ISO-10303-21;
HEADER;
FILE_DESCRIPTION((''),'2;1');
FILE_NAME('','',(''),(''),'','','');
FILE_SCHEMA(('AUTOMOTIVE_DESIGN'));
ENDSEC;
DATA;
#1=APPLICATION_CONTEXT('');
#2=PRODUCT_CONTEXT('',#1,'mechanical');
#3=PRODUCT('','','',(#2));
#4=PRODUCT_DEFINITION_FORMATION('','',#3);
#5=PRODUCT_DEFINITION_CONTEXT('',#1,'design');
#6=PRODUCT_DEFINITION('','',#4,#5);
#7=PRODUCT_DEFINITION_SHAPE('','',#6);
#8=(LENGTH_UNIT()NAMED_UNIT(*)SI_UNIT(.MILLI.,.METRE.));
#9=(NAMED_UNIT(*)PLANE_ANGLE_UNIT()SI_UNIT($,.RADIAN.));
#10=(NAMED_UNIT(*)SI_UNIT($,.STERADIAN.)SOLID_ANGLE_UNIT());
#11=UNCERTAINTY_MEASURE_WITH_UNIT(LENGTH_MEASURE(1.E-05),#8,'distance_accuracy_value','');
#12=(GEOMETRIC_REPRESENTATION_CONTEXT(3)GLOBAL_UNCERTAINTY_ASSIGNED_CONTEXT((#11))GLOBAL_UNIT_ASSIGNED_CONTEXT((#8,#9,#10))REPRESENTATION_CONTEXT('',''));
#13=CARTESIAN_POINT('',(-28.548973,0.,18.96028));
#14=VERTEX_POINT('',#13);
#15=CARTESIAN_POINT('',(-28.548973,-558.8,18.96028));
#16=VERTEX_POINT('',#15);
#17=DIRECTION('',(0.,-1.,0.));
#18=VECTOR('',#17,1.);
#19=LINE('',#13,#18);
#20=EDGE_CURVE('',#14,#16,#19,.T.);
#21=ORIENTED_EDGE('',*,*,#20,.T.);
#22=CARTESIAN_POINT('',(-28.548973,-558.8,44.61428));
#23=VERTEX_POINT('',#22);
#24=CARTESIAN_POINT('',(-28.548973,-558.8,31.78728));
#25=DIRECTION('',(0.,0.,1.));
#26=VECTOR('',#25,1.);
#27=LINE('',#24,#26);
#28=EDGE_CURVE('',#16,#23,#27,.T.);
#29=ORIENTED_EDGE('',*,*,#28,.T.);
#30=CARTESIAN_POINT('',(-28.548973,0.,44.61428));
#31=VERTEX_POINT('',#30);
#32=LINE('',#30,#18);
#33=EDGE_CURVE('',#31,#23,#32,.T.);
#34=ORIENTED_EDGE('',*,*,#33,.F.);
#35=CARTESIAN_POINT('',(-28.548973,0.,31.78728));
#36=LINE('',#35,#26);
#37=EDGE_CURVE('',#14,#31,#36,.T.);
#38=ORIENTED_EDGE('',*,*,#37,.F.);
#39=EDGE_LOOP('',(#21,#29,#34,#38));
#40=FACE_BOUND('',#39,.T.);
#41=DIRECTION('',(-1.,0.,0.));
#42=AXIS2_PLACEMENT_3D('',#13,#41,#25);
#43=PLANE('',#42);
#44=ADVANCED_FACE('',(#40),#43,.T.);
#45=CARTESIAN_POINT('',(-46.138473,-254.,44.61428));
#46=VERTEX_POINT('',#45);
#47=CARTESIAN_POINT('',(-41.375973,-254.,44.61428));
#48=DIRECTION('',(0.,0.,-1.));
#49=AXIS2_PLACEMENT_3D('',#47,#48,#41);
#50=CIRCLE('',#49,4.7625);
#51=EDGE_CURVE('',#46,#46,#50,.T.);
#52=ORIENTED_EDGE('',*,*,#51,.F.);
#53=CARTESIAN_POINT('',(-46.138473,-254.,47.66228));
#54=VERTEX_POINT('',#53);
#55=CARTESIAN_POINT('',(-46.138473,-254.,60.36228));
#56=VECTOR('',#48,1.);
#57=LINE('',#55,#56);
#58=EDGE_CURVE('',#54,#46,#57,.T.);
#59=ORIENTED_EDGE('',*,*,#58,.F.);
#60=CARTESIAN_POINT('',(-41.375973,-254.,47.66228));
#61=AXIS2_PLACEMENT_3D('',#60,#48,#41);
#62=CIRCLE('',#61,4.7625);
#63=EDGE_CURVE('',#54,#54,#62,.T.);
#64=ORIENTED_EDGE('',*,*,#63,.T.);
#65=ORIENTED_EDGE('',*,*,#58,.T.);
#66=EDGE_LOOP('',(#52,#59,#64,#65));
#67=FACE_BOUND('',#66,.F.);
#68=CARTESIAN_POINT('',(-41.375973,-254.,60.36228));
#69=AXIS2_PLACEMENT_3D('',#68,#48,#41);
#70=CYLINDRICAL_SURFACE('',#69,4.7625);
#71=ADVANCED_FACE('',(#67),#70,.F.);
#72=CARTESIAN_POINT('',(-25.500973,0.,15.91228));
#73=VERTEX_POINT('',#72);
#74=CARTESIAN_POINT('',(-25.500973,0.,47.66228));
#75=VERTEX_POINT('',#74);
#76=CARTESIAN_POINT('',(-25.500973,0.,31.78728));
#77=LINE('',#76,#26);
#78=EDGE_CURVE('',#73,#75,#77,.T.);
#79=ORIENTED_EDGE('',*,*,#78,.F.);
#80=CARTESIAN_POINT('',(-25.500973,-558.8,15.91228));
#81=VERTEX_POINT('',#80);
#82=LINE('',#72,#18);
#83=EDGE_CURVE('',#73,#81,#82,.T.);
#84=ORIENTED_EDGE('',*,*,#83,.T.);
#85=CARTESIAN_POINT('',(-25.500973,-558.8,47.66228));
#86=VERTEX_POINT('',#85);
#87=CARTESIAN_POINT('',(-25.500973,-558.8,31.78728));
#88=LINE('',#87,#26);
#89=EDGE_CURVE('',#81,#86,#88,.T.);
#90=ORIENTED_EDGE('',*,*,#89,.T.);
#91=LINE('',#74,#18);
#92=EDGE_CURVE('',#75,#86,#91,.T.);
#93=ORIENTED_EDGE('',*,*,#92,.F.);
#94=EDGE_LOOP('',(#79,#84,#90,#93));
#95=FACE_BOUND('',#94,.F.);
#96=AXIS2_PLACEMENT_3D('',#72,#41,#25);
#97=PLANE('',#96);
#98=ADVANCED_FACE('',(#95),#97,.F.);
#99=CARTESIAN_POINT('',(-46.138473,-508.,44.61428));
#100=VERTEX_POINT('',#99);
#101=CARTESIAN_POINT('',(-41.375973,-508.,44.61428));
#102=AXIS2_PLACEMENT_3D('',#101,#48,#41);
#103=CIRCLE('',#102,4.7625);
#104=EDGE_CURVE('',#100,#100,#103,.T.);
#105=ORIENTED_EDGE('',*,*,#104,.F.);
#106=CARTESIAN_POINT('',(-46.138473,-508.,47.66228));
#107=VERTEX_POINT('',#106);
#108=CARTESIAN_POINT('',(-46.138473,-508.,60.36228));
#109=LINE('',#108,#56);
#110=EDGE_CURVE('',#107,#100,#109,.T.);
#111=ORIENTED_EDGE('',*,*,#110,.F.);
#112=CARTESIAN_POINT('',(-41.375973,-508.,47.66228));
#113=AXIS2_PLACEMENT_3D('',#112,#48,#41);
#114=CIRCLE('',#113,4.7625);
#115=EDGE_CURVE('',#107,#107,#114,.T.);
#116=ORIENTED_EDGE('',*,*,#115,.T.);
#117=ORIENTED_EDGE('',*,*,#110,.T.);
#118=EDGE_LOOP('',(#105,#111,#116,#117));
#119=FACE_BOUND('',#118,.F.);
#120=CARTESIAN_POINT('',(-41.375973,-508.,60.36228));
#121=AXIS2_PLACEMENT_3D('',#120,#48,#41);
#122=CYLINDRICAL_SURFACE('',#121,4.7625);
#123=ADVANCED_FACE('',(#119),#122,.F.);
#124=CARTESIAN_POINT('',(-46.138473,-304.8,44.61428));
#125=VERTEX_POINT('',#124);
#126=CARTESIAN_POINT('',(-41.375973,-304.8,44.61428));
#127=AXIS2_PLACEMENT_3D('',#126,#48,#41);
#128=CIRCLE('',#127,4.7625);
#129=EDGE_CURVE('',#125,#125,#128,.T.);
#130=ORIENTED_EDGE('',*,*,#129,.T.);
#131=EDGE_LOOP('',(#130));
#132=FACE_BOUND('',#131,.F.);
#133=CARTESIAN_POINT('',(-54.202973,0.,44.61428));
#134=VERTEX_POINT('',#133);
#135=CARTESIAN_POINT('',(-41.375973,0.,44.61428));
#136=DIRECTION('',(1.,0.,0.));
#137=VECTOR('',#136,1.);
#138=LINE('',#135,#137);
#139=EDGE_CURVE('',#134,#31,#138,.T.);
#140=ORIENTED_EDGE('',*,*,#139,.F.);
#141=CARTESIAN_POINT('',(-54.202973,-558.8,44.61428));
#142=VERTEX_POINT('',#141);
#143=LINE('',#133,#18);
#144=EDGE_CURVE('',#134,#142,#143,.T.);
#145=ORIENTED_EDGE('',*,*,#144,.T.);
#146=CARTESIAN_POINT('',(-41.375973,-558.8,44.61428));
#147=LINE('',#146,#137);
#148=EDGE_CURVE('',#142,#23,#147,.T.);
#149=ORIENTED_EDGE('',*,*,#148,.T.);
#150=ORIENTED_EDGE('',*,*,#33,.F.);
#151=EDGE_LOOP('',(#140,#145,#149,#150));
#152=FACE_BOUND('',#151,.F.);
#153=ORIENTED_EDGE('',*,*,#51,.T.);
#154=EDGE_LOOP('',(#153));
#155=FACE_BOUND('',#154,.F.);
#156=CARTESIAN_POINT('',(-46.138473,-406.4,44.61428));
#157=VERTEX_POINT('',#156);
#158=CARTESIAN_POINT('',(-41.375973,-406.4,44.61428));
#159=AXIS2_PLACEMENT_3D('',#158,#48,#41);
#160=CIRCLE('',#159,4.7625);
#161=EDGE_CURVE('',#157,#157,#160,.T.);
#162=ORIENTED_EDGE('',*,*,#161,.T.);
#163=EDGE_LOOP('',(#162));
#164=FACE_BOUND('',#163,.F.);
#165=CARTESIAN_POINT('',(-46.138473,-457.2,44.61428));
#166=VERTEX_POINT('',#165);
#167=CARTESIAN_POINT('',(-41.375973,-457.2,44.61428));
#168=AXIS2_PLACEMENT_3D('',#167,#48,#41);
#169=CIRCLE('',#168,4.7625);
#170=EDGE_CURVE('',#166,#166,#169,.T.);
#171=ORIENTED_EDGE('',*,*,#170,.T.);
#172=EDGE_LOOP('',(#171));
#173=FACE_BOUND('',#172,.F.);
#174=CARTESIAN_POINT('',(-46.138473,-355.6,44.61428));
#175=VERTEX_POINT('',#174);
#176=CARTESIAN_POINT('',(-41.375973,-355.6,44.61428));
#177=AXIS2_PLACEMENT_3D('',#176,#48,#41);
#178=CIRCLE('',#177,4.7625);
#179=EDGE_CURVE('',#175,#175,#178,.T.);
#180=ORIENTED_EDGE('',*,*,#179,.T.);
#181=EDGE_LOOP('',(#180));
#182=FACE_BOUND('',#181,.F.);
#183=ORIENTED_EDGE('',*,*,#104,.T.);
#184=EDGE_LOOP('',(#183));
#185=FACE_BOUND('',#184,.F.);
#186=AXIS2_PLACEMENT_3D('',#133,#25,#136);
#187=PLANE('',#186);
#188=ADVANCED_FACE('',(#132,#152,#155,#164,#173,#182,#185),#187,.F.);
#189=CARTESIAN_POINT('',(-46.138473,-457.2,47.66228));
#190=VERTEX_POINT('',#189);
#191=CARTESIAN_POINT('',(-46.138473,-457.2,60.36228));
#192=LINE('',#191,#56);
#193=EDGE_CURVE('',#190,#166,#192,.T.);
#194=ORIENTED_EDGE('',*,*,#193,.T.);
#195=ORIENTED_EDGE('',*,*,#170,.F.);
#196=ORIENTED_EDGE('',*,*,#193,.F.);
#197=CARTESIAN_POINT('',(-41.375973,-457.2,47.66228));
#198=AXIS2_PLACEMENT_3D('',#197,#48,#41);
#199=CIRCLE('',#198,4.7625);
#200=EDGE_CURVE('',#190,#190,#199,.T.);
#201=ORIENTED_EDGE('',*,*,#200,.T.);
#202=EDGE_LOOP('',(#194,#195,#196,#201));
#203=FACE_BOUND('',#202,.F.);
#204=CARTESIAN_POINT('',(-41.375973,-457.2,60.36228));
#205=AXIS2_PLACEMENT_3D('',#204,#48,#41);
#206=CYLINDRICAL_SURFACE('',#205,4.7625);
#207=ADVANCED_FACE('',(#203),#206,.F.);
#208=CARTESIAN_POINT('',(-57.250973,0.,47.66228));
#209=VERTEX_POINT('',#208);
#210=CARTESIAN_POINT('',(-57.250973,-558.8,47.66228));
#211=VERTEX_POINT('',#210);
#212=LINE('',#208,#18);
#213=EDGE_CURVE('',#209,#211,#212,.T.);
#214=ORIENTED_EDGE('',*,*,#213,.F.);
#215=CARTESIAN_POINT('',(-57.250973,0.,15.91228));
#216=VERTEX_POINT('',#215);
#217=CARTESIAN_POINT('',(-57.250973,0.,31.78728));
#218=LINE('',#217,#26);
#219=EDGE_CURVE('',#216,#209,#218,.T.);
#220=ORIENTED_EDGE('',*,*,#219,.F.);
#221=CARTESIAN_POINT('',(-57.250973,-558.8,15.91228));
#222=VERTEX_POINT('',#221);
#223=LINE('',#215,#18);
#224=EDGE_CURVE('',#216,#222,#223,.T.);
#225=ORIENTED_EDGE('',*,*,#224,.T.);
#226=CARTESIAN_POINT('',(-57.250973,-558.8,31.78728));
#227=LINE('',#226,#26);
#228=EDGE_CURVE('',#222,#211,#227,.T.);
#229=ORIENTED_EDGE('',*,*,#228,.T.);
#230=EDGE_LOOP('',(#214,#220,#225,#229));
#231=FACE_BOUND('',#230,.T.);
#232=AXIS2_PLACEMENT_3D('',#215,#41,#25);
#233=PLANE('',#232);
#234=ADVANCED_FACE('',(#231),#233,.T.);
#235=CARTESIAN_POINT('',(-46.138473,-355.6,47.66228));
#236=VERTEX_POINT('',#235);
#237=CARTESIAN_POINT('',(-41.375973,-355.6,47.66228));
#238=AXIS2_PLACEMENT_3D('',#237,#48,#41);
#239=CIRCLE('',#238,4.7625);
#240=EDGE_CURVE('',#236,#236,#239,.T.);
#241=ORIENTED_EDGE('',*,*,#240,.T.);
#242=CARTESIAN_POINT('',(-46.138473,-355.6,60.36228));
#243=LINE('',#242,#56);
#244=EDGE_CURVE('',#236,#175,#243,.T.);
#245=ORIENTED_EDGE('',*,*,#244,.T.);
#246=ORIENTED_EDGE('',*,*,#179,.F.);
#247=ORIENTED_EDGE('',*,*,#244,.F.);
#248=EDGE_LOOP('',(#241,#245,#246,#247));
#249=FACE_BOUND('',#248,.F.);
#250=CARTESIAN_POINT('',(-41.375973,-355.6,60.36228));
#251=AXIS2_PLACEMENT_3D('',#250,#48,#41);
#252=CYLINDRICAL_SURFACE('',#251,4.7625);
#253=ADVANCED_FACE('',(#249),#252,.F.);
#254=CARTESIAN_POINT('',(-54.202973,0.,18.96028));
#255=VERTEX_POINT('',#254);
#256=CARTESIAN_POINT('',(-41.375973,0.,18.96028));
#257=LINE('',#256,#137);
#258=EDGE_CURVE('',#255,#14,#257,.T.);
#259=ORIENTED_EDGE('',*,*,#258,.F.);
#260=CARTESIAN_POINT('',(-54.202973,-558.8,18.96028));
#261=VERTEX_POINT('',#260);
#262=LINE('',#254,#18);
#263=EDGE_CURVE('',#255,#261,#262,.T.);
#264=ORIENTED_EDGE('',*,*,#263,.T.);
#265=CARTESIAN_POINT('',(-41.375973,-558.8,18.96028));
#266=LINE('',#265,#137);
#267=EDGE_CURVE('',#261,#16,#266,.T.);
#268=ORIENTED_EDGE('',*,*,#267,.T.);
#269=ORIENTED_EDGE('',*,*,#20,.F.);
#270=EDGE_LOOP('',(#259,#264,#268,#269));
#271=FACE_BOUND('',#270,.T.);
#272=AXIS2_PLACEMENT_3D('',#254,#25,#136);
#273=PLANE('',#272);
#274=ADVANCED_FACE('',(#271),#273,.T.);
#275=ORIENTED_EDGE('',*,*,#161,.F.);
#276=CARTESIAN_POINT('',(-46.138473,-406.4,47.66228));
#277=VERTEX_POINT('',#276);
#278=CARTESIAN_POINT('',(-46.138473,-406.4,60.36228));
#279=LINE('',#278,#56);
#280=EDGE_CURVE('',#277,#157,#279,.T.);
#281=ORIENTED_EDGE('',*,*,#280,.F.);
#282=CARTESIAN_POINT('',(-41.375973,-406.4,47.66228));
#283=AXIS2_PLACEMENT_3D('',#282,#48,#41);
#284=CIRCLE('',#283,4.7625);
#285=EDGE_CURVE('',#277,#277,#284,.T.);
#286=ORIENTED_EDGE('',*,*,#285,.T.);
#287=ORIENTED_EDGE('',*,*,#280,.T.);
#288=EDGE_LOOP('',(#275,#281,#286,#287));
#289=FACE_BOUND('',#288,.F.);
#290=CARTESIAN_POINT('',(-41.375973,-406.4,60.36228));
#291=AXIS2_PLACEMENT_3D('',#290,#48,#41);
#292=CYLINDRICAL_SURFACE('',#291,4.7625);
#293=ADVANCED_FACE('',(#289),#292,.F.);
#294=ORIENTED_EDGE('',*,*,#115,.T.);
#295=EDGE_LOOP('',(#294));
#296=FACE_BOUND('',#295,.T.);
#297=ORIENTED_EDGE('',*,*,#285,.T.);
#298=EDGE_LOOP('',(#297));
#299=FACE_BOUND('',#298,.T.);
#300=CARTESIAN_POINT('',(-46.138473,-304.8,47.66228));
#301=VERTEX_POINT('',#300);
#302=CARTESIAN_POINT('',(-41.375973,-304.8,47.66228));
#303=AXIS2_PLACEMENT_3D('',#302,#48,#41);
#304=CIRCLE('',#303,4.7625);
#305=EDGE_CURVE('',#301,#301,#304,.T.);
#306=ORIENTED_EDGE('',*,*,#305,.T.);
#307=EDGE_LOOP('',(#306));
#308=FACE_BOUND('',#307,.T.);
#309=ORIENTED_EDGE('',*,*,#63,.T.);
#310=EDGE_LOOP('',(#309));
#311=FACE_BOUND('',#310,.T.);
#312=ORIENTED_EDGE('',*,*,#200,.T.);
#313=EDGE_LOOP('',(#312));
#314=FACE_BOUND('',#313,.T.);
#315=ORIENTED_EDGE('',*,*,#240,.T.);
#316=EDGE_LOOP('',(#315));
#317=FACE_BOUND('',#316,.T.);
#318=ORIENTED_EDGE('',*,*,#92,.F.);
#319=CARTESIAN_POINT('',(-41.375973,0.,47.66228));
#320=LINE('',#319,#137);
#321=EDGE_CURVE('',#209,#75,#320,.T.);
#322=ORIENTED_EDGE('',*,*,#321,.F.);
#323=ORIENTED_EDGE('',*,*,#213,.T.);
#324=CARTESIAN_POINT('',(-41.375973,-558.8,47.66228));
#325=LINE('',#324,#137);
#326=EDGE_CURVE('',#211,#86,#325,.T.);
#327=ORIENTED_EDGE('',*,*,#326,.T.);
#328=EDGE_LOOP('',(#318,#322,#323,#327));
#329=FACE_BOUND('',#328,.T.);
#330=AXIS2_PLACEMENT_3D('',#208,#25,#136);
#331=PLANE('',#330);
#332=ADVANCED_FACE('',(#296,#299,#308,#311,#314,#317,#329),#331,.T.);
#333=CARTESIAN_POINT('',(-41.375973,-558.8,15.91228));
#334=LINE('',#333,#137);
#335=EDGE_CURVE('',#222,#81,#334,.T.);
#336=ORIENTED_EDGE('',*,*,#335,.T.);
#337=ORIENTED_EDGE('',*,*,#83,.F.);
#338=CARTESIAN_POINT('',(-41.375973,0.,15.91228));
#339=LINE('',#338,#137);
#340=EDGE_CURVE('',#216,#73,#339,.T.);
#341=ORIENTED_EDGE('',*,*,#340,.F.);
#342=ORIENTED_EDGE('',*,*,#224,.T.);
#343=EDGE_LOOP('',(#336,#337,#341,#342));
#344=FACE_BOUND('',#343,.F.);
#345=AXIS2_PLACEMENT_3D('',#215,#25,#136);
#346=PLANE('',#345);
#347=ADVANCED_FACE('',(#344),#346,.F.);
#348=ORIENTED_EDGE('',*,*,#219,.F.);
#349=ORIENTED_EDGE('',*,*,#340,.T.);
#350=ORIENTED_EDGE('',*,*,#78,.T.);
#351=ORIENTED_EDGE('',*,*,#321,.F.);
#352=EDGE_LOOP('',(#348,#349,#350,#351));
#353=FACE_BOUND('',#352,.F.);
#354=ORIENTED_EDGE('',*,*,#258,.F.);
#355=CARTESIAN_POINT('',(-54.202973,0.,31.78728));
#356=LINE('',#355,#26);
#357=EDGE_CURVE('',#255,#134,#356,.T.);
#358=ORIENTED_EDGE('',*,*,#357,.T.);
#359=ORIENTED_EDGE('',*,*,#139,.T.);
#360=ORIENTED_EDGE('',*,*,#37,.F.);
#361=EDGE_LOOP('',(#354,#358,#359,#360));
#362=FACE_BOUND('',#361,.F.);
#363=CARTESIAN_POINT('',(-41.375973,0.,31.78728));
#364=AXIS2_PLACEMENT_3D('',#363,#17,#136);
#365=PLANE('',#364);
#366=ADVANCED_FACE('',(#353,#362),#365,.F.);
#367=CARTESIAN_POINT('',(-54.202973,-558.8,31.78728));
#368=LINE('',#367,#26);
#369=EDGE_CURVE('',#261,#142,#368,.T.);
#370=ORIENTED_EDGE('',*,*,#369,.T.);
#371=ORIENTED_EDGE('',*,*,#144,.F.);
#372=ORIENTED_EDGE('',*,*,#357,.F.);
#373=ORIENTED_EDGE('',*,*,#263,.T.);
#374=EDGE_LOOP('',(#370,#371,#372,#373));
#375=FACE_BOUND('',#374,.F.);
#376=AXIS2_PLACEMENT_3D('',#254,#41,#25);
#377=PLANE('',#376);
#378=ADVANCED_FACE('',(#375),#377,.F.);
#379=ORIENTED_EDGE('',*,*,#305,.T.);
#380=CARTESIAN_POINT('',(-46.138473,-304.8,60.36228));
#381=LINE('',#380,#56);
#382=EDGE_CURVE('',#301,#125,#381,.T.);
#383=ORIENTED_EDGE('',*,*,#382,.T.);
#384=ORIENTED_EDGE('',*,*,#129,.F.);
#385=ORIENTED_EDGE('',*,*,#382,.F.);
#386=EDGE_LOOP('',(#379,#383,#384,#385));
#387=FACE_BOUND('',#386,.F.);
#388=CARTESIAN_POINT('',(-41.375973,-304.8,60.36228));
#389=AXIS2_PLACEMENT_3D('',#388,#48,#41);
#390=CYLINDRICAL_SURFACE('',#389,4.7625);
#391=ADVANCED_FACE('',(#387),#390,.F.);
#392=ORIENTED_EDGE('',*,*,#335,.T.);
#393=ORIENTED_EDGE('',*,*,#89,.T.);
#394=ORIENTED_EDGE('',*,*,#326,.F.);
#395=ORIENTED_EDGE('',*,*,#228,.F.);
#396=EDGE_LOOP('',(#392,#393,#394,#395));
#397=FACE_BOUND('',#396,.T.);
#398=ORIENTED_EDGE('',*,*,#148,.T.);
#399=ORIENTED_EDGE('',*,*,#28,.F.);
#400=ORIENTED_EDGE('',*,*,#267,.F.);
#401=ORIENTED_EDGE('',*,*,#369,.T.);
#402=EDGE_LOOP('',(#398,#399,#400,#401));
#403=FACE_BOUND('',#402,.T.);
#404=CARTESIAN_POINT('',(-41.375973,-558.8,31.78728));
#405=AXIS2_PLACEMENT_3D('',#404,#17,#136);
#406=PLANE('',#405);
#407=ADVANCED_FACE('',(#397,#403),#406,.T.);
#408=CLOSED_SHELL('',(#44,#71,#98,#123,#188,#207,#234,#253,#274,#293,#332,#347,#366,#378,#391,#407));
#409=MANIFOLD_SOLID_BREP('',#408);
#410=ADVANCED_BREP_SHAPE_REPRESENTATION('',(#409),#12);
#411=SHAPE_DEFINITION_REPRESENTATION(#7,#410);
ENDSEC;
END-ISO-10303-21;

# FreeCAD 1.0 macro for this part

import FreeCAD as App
import Part
import Sketcher
Q = App.Units.Quantity

doc = App.newDocument("Part")
body = doc.addObject("PartDesign::Body", "Body")

sketch1 = body.newObject("Sketcher::SketchObject", "Sketch")
sketch1.AttachmentSupport = (doc.getObject("XZ_Plane"), [""])
sketch1.MapMode = "FlatFace"
sketch1.addGeometry([
    Part.LineSegment(App.Vector(-57.250973, 47.66228, 0), App.Vector(-57.250973, 15.91228, 0)),
    Part.LineSegment(App.Vector(-57.250973, 15.91228, 0), App.Vector(-25.500973, 15.91228, 0)),
    Part.LineSegment(App.Vector(-25.500973, 15.91228, 0), App.Vector(-25.500973, 47.66228, 0)),
    Part.LineSegment(App.Vector(-25.500973, 47.66228, 0), App.Vector(-57.250973, 47.66228, 0)),
    Part.LineSegment(App.Vector(-28.548973, 18.96028, 0), App.Vector(-54.202973, 18.96028, 0)),
    Part.LineSegment(App.Vector(-54.202973, 18.96028, 0), App.Vector(-54.202973, 44.61428, 0)),
    Part.LineSegment(App.Vector(-54.202973, 44.61428, 0), App.Vector(-28.548973, 44.61428, 0)),
    Part.LineSegment(App.Vector(-28.548973, 44.61428, 0), App.Vector(-28.548973, 18.96028, 0)),
], False)
sketch1.addConstraint([
    Sketcher.Constraint("Coincident", 0, 2, 1, 1),
    Sketcher.Constraint("Coincident", 1, 2, 2, 1),
    Sketcher.Constraint("Coincident", 2, 2, 3, 1),
    Sketcher.Constraint("Coincident", 3, 2, 0, 1),
    Sketcher.Constraint("Coincident", 4, 2, 5, 1),
    Sketcher.Constraint("Coincident", 5, 2, 6, 1),
    Sketcher.Constraint("Coincident", 6, 2, 7, 1),
    Sketcher.Constraint("Coincident", 7, 2, 4, 1),
    Sketcher.Constraint("Vertical", 0),
    Sketcher.Constraint("Horizontal", 1),
    Sketcher.Constraint("Vertical", 2),
    Sketcher.Constraint("Horizontal", 3),
    Sketcher.Constraint("Horizontal", 4),
    Sketcher.Constraint("Vertical", 5),
    Sketcher.Constraint("Horizontal", 6),
    Sketcher.Constraint("Vertical", 7),
    Sketcher.Constraint("Equal", 3, 0),
    Sketcher.Constraint("Equal", 6, 5),
    Sketcher.Constraint("DistanceX", 1, 1, 1, 2, Q("1.25 in")),
    Sketcher.Constraint("DistanceX", 4, 2, 4, 1, Q("1.01 in")),
    Sketcher.Constraint("DistanceX", 0, 2, 4, 2, Q("0.12 in")),
    Sketcher.Constraint("DistanceY", 0, 2, 4, 2, Q("0.12 in")),
    Sketcher.Constraint("DistanceY", -1, 1, 0, 2, 15.91228),
    Sketcher.Constraint("DistanceX", 0, 2, -1, 1, 57.250973),
])
pad1 = body.newObject("PartDesign::Pad", "Pad")
pad1.Profile = sketch1
pad1.Length = Q("22 in")

sketch2 = body.newObject("Sketcher::SketchObject", "Sketch001")
sketch2.AttachmentSupport = (doc.getObject("XY_Plane"), [""])
sketch2.MapMode = "FlatFace"
sketch2.AttachmentOffset = App.Placement(App.Vector(0, 0, 47.66228), App.Rotation())
sketch2.addGeometry([
    Part.Circle(App.Vector(-41.375973, -508, 0), App.Vector(0, 0, 1), 4.7625),
    Part.Circle(App.Vector(-41.375973, -457.2, 0), App.Vector(0, 0, 1), 4.7625),
    Part.Circle(App.Vector(-41.375973, -406.4, 0), App.Vector(0, 0, 1), 4.7625),
    Part.Circle(App.Vector(-41.375973, -355.6, 0), App.Vector(0, 0, 1), 4.7625),
    Part.Circle(App.Vector(-41.375973, -304.8, 0), App.Vector(0, 0, 1), 4.7625),
    Part.Circle(App.Vector(-41.375973, -254, 0), App.Vector(0, 0, 1), 4.7625),
], False)
sketch2.addConstraint([
    Sketcher.Constraint("Equal", 0, 1),
    Sketcher.Constraint("Equal", 1, 2),
    Sketcher.Constraint("Equal", 2, 3),
    Sketcher.Constraint("Equal", 3, 4),
    Sketcher.Constraint("Equal", 4, 5),
    Sketcher.Constraint("Vertical", 0, 3, 1, 3),
    Sketcher.Constraint("Vertical", 1, 3, 2, 3),
    Sketcher.Constraint("Vertical", 2, 3, 3, 3),
    Sketcher.Constraint("Vertical", 3, 3, 4, 3),
    Sketcher.Constraint("Vertical", 4, 3, 5, 3),
    Sketcher.Constraint("Diameter", 0, Q("0.375 in")),
    Sketcher.Constraint("DistanceY", 0, 3, -1, 1, Q("20 in")),
    Sketcher.Constraint("DistanceY", 1, 3, -1, 1, Q("18 in")),
    Sketcher.Constraint("DistanceY", 2, 3, -1, 1, Q("16 in")),
    Sketcher.Constraint("DistanceY", 3, 3, -1, 1, Q("14 in")),
    Sketcher.Constraint("DistanceY", 4, 3, -1, 1, Q("12 in")),
    Sketcher.Constraint("DistanceY", 5, 3, -1, 1, Q("10 in")),
    Sketcher.Constraint("DistanceX", 0, 3, -1, 1, 41.375973),
])
doc.recompute()
hole = body.newObject("PartDesign::Hole", "Hole")
hole.Profile = sketch2
hole.ThreadType = "None"
hole.Diameter = Q("0.375 in")
hole.DepthType = "Dimension"
hole.Depth = Q("0.5 in")
hole.DrillPoint = "Flat"

doc.recompute()
